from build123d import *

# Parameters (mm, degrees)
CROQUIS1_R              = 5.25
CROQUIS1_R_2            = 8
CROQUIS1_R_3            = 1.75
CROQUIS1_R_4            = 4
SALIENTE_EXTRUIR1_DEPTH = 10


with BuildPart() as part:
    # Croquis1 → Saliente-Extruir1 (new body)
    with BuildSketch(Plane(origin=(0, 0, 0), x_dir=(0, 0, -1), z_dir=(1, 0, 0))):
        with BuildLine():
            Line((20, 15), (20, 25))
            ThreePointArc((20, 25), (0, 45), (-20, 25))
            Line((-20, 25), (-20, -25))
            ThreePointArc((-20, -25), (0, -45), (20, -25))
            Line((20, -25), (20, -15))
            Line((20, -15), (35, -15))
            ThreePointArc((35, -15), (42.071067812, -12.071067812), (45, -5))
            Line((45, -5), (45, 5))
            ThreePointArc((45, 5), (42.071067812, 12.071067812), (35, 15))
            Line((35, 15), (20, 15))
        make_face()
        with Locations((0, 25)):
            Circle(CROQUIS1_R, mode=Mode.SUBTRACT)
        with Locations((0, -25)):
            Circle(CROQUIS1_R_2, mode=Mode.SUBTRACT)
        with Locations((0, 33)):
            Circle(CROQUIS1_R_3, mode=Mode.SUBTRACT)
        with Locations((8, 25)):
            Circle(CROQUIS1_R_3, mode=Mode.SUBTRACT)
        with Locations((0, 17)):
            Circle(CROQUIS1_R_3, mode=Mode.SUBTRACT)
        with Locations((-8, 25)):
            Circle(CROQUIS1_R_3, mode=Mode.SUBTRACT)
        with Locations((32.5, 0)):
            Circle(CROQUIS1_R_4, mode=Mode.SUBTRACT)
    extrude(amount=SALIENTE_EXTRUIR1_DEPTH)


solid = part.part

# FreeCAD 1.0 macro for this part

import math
import FreeCAD as App
import Part
import Sketcher
Q = App.Units.Quantity

doc = App.newDocument("Part")
body = doc.addObject("PartDesign::Body", "Body")

sketch1 = doc.addObject("Sketcher::SketchObject", "Sketch")
body.addObject(sketch1)
sketch1.AttachmentSupport = (doc.YZ_Plane, [""])
sketch1.MapMode = "FlatFace"
sketch1.addGeometry([
    Part.LineSegment(App.Vector(15, -20, 0), App.Vector(25, -20, 0)),
    Part.ArcOfCircle(Part.Circle(App.Vector(25, 0, 0), App.Vector(0, 0, 1), 20), math.radians(-90), math.radians(90)),
    Part.LineSegment(App.Vector(25, 20, 0), App.Vector(-25, 20, 0)),
    Part.ArcOfCircle(Part.Circle(App.Vector(-25, 0, 0), App.Vector(0, 0, 1), 20), math.radians(90), math.radians(270)),
    Part.LineSegment(App.Vector(-25, -20, 0), App.Vector(-15, -20, 0)),
    Part.LineSegment(App.Vector(-15, -20, 0), App.Vector(-15, -35, 0)),
    Part.ArcOfCircle(Part.Circle(App.Vector(-5, -35, 0), App.Vector(0, 0, 1), 10), math.radians(180), math.radians(270)),
    Part.LineSegment(App.Vector(-5, -45, 0), App.Vector(5, -45, 0)),
    Part.ArcOfCircle(Part.Circle(App.Vector(5, -35, 0), App.Vector(0, 0, 1), 10), math.radians(-90), math.radians(0)),
    Part.LineSegment(App.Vector(15, -35, 0), App.Vector(15, -20, 0)),
    Part.Circle(App.Vector(-25, 0, 0), App.Vector(0, 0, 1), 8),
    Part.Circle(App.Vector(0, -32.5, 0), App.Vector(0, 0, 1), 4),
    Part.Circle(App.Vector(17, 0, 0), App.Vector(0, 0, 1), 1.8),
    Part.Circle(App.Vector(25, 8, 0), App.Vector(0, 0, 1), 1.8),
    Part.Circle(App.Vector(25, 0, 0), App.Vector(0, 0, 1), 5.2),
    Part.Circle(App.Vector(33, 0, 0), App.Vector(0, 0, 1), 1.8),
    Part.Circle(App.Vector(25, -8, 0), App.Vector(0, 0, 1), 1.8),
], False)
sketch1.addConstraint([
    Sketcher.Constraint("Tangent", 0, 2, 1, 1),
    Sketcher.Constraint("Tangent", 1, 2, 2, 1),
    Sketcher.Constraint("Tangent", 2, 2, 3, 1),
    Sketcher.Constraint("Tangent", 3, 2, 4, 1),
    Sketcher.Constraint("Coincident", 4, 2, 5, 1),
    Sketcher.Constraint("Tangent", 5, 2, 6, 1),
    Sketcher.Constraint("Tangent", 6, 2, 7, 1),
    Sketcher.Constraint("Tangent", 7, 2, 8, 1),
    Sketcher.Constraint("Tangent", 8, 2, 9, 1),
    Sketcher.Constraint("Coincident", 9, 2, 0, 1),
    Sketcher.Constraint("Horizontal", 0),
    Sketcher.Constraint("Horizontal", 2),
    Sketcher.Constraint("Horizontal", 4),
    Sketcher.Constraint("Vertical", 5),
    Sketcher.Constraint("Horizontal", 7),
    Sketcher.Constraint("Vertical", 9),
    Sketcher.Constraint("Coincident", 10, 3, 3, 3),
    Sketcher.Constraint("Coincident", 14, 3, 1, 3),
    Sketcher.Constraint("Equal", 1, 3),
    Sketcher.Constraint("Equal", 6, 8),
    Sketcher.Constraint("Equal", 12, 13),
    Sketcher.Constraint("Equal", 13, 15),
    Sketcher.Constraint("Equal", 15, 16),
    Sketcher.Constraint("Symmetric", 1, 3, 3, 3, -1, 1),
    Sketcher.Constraint("Symmetric", 13, 3, 16, 3, -1),
    Sketcher.Constraint("PointOnObject", 11, 3, -2),
    Sketcher.Constraint("PointOnObject", 12, 3, -1),
    Sketcher.Constraint("PointOnObject", 15, 3, -1),
    Sketcher.Constraint("Vertical", 1, 3, 13, 3),
    Sketcher.Constraint("Equal", 0, 4),
    Sketcher.Constraint("Equal", 4, 7),
    Sketcher.Constraint("Diameter", 10, Q("16 mm")),
    Sketcher.Constraint("Diameter", 11, Q("8 mm")),
    Sketcher.Constraint("Radius", 1, Q("20 mm")),
    Sketcher.Constraint("Radius", 6, Q("10 mm")),
    Sketcher.Constraint("Diameter", 12, Q("3.5 mm")),
    Sketcher.Constraint("Diameter", 14, Q("10.5 mm")),
    Sketcher.Constraint("DistanceX", 0, 1, 0, 2, Q("10 mm")),
    Sketcher.Constraint("DistanceY", 5, 2, 5, 1, Q("15 mm")),
    Sketcher.Constraint("DistanceX", -1, 1, 12, 3, Q("17 mm")),
    Sketcher.Constraint("DistanceY", -1, 1, 13, 3, Q("8 mm")),
    Sketcher.Constraint("DistanceX", -1, 1, 15, 3, Q("33 mm")),
    Sketcher.Constraint("DistanceY", 11, 3, -1, 1, Q("32.5 mm")),
])
pad1 = doc.addObject("PartDesign::Pad", "Pad")
body.addObject(pad1)
pad1.Profile = sketch1
pad1.Length = 10

doc.recompute()
